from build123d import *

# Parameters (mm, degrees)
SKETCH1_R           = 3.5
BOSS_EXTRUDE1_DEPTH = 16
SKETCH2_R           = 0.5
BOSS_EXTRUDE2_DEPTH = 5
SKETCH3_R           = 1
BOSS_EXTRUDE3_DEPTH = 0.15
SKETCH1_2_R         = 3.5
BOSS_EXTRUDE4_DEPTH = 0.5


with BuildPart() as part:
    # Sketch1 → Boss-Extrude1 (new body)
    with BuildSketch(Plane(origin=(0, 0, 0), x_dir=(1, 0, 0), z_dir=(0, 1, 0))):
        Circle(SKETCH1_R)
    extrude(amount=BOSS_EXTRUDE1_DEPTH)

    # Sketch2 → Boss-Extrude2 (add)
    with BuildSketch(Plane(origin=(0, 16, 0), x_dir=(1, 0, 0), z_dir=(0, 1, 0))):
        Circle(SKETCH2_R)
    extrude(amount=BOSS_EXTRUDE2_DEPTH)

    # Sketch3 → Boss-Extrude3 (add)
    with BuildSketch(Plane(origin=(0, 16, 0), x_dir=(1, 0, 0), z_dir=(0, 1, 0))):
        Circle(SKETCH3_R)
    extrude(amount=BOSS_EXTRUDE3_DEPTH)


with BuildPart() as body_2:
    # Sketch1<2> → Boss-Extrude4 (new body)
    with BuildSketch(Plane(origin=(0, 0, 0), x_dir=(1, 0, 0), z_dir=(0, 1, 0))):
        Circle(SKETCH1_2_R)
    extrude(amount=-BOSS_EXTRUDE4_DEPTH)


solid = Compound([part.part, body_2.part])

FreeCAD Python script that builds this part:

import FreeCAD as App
import Part
import Sketcher

doc = App.newDocument("Part")
body = doc.addObject("PartDesign::Body", "Body")

# Sketch on XZ plane
sketch1 = body.newObject("Sketcher::SketchObject", "Sketch")
sketch1.AttachmentSupport = (doc.getObject("XZ_Plane"), [""])
sketch1.MapMode = "FlatFace"
sketch1.addGeometry(Part.Circle(App.Vector(0, 0, 0), App.Vector(0, 0, 1), 3.5), False)
sketch1.addConstraint(Sketcher.Constraint("Coincident", 0, 3, -1, 1))
sketch1.addConstraint(Sketcher.Constraint("Diameter", 0, 7.0))
pad1 = body.newObject("PartDesign::Pad", "Pad")
pad1.Profile = sketch1
pad1.Length = 16
pad1.Reversed = True

# Sketch on XZ plane
sketch2 = body.newObject("Sketcher::SketchObject", "Sketch001")
sketch2.AttachmentSupport = (doc.getObject("XZ_Plane"), [""])
sketch2.MapMode = "FlatFace"
sketch2.AttachmentOffset = App.Placement(App.Vector(0, 0, -16), App.Rotation())
sketch2.addGeometry(Part.Circle(App.Vector(0, 0, 0), App.Vector(0, 0, 1), 0.5), False)
sketch2.addConstraint(Sketcher.Constraint("Coincident", 0, 3, -1, 1))
sketch2.addConstraint(Sketcher.Constraint("Diameter", 0, 1.0))
pad2 = body.newObject("PartDesign::Pad", "Pad001")
pad2.Profile = sketch2
pad2.Length = 5
pad2.Reversed = True

# Sketch on XZ plane
sketch3 = body.newObject("Sketcher::SketchObject", "Sketch002")
sketch3.AttachmentSupport = (doc.getObject("XZ_Plane"), [""])
sketch3.MapMode = "FlatFace"
sketch3.AttachmentOffset = App.Placement(App.Vector(0, 0, -16), App.Rotation())
sketch3.addGeometry(Part.Circle(App.Vector(0, 0, 0), App.Vector(0, 0, 1), 1), False)
sketch3.addConstraint(Sketcher.Constraint("Coincident", 0, 3, -1, 1))
sketch3.addConstraint(Sketcher.Constraint("Diameter", 0, 2.0))
pad3 = body.newObject("PartDesign::Pad", "Pad002")
pad3.Profile = sketch3
pad3.Length = 0.15
pad3.Reversed = True
body2 = doc.addObject("PartDesign::Body", "Body001")

# Sketch on XZ plane
sketch4 = body2.newObject("Sketcher::SketchObject", "Sketch003")
sketch4.AttachmentSupport = (doc.getObject("XZ_Plane001"), [""])
sketch4.MapMode = "FlatFace"
sketch4.addGeometry(Part.Circle(App.Vector(0, 0, 0), App.Vector(0, 0, 1), 3.5), False)
sketch4.addConstraint(Sketcher.Constraint("Coincident", 0, 3, -1, 1))
sketch4.addConstraint(Sketcher.Constraint("Diameter", 0, 7.0))
pad4 = body2.newObject("PartDesign::Pad", "Pad003")
pad4.Profile = sketch4
pad4.Length = 0.5

doc.recompute()
